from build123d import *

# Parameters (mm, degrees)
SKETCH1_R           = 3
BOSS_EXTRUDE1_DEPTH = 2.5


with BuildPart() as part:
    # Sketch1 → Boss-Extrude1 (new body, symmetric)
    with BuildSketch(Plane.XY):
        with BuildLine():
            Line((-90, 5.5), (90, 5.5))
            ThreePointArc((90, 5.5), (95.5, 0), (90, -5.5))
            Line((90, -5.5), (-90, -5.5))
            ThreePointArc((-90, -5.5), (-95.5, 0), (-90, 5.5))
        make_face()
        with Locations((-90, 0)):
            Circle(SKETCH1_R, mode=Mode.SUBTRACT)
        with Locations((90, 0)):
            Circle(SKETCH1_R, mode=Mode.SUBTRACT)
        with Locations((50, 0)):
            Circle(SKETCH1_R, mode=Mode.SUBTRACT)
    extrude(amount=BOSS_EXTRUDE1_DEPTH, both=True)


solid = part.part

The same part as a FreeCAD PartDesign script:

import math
import FreeCAD as App
import Part
import Sketcher
from FreeCAD import Vector
Q = App.Units.Quantity

doc = App.newDocument("Part")
params = doc.addObject("Spreadsheet::Sheet", "Params")
for row, (alias, value) in enumerate([
    ("sketch1_diameter", "6 mm"),
    ("sketch1_radius", "5.5 mm"),
    ("sketch1_width", "180 mm"),
    ("pad1_length", "5 mm"),
], start=1):
    params.set(f"A{row}", alias)
    params.set(f"B{row}", "=" + value)
    params.setAlias(f"B{row}", alias)

body = doc.addObject("PartDesign::Body", "Body")

# Sketch on XY plane
sketch1 = body.newObject("Sketcher::SketchObject", "Sketch")
sketch1.AttachmentSupport = (doc.getObject("XY_Plane"), [""])
sketch1.MapMode = "FlatFace"
sketch1.addGeometry([
    Part.LineSegment(Vector(90, 5.5, 0), Vector(-90, 5.5, 0)),  # 0
    Part.ArcOfCircle(Part.Circle(Vector(-90, 0, 0), Vector(0, 0, 1), 5.5), math.radians(90), math.radians(270)),  # 1
    Part.LineSegment(Vector(-90, -5.5, 0), Vector(90, -5.5, 0)),  # 2
    Part.ArcOfCircle(Part.Circle(Vector(90, 0, 0), Vector(0, 0, 1), 5.5), math.radians(-90), math.radians(90)),  # 3
    Part.Circle(Vector(90, 0, 0), Vector(0, 0, 1), 3),  # 4
    Part.Circle(Vector(50, 0, 0), Vector(0, 0, 1), 3),  # 5
    Part.Circle(Vector(-90, 0, 0), Vector(0, 0, 1), 3),  # 6
], False)
sketch1.addConstraint([
    Sketcher.Constraint("Tangent", 0, 2, 1, 1),
    Sketcher.Constraint("Tangent", 1, 2, 2, 1),
    Sketcher.Constraint("Tangent", 2, 2, 3, 1),
    Sketcher.Constraint("Tangent", 3, 2, 0, 1),
    Sketcher.Constraint("Horizontal", 0),
    Sketcher.Constraint("Horizontal", 2),
    Sketcher.Constraint("Coincident", 4, 3, 3, 3),
    Sketcher.Constraint("Coincident", 6, 3, 1, 3),
    Sketcher.Constraint("Equal", 4, 5),
    Sketcher.Constraint("Equal", 5, 6),
    Sketcher.Constraint("Symmetric", 1, 3, 3, 3, -1, 1),
    Sketcher.Constraint("PointOnObject", 5, 3, -1),
    Sketcher.Constraint("Diameter", 4, Q("6 mm")),
    Sketcher.Constraint("Radius", 1, Q("5.5 mm")),
    Sketcher.Constraint("DistanceX", 0, 2, 0, 1, Q("180 mm")),
    Sketcher.Constraint("DistanceX", -1, 1, 5, 3, Q("50 mm")),
])
sketch1.setExpression("Constraints[12]", "Params.sketch1_diameter")
sketch1.setExpression("Constraints[13]", "Params.sketch1_radius")
sketch1.setExpression("Constraints[14]", "Params.sketch1_width")
pad1 = body.newObject("PartDesign::Pad", "Pad")
pad1.Profile = sketch1
pad1.setExpression("Length", "Params.pad1_length")
pad1.Midplane = True

doc.recompute()
